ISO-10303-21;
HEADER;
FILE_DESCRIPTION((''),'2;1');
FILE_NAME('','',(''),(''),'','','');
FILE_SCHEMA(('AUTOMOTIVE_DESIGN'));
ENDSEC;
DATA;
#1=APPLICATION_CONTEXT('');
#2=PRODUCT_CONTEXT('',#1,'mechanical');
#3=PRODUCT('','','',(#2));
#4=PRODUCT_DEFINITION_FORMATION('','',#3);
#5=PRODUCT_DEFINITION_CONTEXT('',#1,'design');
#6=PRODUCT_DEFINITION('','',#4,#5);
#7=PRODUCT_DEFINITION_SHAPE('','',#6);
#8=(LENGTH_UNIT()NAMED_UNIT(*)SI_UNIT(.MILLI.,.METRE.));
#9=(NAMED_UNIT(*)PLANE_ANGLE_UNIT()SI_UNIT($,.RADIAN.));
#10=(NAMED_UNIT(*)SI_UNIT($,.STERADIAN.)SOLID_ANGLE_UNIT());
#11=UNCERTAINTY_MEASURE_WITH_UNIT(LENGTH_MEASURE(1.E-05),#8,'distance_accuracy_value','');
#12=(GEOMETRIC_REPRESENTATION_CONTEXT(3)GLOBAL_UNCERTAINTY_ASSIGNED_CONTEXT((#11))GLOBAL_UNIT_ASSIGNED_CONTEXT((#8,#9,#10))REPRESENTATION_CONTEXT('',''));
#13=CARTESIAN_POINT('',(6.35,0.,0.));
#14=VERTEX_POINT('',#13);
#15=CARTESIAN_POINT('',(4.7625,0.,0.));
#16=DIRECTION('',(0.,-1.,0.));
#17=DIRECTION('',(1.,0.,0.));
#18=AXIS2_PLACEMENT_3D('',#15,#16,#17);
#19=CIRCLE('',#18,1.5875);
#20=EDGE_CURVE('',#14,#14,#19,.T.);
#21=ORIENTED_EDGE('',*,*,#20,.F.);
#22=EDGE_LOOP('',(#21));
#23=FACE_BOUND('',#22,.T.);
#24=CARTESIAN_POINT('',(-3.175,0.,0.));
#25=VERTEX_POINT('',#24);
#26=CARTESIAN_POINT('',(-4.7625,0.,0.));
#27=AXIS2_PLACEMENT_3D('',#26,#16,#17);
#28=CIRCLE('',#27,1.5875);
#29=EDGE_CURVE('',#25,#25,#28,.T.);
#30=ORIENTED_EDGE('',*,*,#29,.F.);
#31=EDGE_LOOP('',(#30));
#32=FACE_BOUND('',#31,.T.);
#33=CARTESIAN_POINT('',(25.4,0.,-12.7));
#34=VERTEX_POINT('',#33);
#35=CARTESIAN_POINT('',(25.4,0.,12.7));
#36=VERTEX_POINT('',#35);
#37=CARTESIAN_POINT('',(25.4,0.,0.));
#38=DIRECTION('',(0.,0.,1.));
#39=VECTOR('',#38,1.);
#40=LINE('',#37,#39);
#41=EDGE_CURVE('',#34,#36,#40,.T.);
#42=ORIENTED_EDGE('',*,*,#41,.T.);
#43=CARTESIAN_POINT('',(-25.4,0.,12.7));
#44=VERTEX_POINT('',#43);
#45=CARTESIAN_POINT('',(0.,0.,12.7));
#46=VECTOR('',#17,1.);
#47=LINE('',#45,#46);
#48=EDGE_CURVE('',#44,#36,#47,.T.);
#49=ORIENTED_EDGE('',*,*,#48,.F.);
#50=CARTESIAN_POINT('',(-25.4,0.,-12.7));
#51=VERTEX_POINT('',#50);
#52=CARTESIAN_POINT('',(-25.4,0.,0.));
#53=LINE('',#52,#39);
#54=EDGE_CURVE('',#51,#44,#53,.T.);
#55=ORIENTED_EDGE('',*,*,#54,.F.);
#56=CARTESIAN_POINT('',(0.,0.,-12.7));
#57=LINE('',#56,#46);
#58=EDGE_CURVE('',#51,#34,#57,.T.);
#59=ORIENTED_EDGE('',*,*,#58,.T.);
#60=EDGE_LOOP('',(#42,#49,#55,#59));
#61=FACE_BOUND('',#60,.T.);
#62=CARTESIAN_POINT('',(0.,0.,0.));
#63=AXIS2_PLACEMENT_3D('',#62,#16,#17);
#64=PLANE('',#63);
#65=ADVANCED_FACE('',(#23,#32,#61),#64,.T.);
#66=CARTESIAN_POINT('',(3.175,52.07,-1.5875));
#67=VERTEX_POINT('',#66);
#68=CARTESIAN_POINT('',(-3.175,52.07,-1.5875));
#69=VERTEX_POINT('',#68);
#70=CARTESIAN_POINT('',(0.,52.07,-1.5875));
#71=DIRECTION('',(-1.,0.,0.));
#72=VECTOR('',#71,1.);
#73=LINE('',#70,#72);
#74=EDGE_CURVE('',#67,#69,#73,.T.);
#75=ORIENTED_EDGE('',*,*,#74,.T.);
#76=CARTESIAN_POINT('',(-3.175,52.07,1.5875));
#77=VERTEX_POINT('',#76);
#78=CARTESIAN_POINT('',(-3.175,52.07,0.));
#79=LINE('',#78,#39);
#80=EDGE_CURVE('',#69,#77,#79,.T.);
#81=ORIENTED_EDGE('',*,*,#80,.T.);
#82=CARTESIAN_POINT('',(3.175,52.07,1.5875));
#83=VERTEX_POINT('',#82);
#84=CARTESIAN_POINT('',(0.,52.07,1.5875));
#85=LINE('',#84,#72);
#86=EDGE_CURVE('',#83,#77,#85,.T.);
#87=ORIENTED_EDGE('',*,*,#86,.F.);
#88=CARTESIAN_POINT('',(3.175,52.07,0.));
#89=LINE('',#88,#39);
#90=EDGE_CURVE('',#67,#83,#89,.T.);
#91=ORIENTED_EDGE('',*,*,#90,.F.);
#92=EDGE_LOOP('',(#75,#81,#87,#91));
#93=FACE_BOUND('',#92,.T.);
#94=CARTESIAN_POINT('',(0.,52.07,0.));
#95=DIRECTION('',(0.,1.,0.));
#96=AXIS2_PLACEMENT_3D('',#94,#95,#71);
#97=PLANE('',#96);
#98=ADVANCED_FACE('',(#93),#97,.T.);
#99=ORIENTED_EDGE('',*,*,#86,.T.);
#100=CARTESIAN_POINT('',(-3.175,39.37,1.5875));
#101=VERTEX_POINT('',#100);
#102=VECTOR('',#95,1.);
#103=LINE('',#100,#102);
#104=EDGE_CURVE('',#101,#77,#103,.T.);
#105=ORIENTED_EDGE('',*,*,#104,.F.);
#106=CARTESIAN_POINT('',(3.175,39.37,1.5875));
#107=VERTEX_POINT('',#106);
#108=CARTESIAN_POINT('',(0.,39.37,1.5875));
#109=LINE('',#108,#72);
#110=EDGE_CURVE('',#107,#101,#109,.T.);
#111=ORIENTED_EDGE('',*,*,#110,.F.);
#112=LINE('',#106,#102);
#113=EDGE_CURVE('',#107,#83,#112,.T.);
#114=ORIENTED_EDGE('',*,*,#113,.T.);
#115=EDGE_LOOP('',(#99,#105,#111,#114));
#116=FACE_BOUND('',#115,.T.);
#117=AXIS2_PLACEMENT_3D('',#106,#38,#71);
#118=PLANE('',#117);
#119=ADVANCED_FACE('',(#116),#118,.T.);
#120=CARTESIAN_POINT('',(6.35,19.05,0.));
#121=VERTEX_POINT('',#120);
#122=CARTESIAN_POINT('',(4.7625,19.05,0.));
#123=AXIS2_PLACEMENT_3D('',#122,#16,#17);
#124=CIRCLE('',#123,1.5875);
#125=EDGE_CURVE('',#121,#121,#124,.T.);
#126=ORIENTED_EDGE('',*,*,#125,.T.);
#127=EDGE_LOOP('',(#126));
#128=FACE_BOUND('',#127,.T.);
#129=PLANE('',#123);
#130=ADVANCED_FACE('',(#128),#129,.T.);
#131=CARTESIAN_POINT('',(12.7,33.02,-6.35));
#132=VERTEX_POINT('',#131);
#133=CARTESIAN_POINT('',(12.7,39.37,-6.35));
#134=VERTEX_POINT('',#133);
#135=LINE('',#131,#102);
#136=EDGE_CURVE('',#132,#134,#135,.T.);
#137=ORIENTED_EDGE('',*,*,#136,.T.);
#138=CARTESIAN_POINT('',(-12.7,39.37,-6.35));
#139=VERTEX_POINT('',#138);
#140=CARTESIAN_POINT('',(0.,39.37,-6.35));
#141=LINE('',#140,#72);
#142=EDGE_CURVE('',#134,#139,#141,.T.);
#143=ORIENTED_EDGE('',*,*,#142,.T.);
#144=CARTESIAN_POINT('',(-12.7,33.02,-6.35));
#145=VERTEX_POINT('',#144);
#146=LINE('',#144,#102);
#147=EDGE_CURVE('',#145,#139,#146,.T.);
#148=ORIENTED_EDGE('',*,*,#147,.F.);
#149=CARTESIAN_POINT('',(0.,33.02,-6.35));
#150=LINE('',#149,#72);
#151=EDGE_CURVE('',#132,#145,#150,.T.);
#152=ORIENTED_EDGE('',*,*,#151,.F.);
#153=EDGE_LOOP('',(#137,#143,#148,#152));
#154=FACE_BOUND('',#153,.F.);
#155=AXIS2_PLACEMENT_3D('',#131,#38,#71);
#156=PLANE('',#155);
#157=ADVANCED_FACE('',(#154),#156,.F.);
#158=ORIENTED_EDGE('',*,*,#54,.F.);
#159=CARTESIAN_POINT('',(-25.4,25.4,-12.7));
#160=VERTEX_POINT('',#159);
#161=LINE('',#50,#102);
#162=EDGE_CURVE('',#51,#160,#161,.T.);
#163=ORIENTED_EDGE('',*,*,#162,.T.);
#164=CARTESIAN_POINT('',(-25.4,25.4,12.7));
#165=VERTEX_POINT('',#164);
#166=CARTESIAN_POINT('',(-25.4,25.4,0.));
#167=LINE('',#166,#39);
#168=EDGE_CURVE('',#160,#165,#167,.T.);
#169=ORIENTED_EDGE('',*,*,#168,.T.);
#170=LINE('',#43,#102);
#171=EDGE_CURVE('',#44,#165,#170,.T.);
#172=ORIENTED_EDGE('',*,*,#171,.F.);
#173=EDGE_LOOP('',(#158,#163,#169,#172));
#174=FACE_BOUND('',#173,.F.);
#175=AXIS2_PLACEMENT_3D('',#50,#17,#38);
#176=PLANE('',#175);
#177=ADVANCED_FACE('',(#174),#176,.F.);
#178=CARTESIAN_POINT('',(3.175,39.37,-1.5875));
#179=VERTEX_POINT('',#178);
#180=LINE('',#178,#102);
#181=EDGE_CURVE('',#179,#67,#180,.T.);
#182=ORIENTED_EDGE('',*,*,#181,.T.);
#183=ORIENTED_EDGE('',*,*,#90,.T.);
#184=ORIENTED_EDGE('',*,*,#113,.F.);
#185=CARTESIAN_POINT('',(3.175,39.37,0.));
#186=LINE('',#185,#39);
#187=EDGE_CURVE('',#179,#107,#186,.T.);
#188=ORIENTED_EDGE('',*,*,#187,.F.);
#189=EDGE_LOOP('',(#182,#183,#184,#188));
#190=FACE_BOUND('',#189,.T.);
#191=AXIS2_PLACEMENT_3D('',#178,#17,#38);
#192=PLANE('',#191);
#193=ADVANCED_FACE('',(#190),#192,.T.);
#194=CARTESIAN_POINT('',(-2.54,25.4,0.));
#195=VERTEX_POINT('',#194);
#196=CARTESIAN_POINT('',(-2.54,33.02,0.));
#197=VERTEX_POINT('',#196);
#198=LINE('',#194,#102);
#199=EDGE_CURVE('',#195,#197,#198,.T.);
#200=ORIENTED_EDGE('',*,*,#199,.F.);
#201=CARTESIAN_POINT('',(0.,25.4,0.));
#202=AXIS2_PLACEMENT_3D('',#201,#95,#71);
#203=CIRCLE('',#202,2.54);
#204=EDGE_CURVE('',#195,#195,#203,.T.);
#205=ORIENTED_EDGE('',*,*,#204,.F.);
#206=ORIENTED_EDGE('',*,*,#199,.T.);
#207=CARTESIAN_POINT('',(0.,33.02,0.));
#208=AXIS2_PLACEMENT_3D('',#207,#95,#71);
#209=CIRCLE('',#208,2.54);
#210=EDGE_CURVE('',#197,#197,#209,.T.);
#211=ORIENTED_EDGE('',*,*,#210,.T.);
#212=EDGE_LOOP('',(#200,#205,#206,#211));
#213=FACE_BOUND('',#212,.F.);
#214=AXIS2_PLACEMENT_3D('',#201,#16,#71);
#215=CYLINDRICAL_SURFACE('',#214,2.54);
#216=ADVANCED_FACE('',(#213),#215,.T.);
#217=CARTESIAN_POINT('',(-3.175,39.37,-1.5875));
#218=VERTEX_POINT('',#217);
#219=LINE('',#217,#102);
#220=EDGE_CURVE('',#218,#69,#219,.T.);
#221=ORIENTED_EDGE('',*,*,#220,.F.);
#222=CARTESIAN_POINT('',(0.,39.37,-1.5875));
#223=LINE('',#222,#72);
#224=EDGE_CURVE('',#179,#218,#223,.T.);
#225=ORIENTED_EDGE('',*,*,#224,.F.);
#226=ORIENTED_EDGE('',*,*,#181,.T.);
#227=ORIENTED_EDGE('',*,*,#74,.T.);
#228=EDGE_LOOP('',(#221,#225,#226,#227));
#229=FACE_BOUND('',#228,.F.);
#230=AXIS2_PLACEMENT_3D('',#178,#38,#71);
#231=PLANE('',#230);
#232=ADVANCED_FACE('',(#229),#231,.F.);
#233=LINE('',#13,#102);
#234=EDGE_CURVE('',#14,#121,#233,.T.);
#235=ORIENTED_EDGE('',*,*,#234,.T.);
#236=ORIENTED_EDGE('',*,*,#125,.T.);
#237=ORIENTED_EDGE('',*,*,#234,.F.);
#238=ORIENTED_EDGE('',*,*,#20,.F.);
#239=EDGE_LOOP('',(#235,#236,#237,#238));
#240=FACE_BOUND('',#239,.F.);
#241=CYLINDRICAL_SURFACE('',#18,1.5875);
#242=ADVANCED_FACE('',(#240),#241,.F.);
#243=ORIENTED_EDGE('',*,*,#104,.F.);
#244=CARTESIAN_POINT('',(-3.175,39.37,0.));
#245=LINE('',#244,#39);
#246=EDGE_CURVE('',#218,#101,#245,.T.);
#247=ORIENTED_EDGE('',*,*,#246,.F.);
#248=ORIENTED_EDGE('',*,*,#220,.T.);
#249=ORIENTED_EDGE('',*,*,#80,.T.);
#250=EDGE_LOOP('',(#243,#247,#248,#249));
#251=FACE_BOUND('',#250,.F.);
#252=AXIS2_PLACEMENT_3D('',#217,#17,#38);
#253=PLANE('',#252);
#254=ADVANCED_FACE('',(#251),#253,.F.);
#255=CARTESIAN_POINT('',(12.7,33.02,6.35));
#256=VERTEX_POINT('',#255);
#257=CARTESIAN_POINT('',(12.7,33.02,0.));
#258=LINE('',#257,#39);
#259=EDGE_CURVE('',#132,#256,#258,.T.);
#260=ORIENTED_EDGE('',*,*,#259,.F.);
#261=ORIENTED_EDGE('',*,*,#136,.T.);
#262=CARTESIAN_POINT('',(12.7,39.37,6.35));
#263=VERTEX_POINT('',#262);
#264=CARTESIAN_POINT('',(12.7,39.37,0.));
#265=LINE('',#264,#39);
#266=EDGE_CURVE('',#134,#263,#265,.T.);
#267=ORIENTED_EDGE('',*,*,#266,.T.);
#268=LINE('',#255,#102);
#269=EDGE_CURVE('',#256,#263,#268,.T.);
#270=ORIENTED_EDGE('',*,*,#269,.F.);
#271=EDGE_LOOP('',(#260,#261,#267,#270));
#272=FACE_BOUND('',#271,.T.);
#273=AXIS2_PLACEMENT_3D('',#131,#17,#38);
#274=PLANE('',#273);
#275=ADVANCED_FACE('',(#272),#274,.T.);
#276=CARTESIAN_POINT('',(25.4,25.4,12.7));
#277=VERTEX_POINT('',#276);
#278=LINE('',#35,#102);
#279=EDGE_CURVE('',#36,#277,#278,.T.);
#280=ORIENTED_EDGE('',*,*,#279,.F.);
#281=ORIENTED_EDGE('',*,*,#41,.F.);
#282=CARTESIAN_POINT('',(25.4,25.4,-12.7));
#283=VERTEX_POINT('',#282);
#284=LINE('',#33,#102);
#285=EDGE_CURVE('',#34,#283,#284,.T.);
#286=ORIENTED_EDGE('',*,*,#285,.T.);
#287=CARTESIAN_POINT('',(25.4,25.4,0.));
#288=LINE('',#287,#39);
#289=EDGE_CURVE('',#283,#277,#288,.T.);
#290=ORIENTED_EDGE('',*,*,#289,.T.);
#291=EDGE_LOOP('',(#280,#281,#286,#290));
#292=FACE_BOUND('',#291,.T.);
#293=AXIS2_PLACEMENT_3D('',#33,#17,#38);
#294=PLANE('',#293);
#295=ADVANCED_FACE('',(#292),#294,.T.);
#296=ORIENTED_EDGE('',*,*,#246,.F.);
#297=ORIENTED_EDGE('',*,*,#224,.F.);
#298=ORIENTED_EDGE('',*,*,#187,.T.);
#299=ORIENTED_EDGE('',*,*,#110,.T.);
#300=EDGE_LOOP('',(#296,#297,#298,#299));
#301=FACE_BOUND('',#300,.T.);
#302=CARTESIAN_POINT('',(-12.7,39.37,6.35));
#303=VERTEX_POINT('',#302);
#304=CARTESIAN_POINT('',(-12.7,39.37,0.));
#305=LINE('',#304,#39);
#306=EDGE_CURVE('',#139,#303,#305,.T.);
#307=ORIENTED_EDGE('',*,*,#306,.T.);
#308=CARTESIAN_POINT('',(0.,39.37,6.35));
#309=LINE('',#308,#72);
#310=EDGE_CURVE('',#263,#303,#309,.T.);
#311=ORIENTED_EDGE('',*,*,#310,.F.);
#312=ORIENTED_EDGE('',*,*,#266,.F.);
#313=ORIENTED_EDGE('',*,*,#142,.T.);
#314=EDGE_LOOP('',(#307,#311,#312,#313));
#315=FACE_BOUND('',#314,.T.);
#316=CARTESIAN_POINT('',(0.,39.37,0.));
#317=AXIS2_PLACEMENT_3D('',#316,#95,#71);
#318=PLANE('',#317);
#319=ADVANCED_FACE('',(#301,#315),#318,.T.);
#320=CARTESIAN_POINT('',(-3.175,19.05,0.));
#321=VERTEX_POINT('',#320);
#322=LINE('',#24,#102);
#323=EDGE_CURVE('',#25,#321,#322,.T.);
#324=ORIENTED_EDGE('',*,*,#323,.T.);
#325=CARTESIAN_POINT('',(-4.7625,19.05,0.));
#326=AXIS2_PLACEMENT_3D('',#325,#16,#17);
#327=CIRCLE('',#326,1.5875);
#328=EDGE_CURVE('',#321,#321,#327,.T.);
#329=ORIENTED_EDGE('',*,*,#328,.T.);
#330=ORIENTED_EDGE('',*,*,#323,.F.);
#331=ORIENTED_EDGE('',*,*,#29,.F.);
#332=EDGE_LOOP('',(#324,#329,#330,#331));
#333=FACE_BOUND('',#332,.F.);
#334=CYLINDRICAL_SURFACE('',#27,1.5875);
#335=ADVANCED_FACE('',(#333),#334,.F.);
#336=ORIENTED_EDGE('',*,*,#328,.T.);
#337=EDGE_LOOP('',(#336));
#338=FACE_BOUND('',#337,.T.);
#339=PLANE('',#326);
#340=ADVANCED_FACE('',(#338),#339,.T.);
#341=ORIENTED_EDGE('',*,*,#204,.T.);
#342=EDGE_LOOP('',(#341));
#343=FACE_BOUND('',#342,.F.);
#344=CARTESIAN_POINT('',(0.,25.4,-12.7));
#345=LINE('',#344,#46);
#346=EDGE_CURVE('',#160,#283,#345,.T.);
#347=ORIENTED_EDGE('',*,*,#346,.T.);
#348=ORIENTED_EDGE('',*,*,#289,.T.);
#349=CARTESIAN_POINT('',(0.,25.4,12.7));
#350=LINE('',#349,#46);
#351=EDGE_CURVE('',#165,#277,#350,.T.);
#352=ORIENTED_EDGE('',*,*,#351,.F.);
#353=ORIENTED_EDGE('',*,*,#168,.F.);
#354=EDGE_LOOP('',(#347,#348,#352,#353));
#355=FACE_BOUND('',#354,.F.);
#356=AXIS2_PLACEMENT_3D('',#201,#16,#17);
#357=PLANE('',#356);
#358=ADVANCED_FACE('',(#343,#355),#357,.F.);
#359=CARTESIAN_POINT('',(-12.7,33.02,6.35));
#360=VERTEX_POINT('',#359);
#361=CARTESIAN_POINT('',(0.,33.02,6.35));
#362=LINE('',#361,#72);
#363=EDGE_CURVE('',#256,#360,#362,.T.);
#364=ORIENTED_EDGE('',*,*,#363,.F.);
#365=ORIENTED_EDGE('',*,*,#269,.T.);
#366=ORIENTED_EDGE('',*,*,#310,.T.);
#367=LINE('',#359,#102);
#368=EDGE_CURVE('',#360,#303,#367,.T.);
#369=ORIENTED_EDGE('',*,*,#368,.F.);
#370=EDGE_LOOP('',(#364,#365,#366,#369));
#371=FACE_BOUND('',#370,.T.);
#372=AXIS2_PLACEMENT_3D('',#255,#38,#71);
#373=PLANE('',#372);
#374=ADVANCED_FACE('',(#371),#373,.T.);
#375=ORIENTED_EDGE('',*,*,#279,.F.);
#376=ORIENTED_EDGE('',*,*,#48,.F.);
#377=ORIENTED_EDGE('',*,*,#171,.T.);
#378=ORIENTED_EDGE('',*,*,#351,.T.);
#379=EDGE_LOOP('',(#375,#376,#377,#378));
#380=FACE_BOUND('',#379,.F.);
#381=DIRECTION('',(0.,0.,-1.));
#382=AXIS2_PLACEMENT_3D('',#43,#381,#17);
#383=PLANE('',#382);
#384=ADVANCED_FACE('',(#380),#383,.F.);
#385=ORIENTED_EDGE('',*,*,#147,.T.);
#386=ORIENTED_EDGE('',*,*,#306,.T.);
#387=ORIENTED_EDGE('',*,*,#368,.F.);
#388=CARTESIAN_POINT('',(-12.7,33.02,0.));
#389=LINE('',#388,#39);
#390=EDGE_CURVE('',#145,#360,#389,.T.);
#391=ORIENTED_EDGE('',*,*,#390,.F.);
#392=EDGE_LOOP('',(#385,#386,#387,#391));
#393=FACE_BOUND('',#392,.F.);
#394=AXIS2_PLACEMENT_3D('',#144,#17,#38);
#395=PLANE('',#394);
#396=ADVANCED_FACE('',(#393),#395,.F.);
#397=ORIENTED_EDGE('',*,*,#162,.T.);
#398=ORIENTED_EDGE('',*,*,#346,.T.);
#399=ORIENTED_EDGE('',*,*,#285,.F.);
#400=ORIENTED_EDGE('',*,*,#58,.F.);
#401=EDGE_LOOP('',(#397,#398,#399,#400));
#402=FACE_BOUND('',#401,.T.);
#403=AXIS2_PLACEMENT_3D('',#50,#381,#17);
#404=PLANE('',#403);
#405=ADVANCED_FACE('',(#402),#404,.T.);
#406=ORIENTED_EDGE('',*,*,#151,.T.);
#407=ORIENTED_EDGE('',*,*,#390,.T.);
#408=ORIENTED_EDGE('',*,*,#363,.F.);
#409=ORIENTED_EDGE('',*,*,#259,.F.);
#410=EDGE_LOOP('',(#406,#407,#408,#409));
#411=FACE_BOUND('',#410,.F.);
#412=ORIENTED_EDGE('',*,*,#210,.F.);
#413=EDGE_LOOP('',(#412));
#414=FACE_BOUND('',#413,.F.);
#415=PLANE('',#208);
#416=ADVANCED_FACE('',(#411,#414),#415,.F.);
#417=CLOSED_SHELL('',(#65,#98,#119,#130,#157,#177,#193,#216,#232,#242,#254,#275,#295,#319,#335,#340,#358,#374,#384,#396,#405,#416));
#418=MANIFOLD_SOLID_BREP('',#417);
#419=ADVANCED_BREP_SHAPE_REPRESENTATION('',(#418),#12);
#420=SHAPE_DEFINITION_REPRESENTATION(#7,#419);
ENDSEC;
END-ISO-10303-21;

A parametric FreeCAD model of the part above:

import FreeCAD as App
import Part
import Sketcher
from FreeCAD import Vector
Q = App.Units.Quantity

doc = App.newDocument("Part")
params = doc.addObject("Spreadsheet::Sheet", "Params")
for row, (alias, value) in enumerate([
    ("sketch1_width", "2 in"),
    ("sketch1_height", "1 in"),
    ("pad1_length", "1 in"),
    ("sketch2_diameter", "0.2 in"),
    ("pad2_length", "0.3 in"),
    ("sketch3_width", "1 in"),
    ("sketch3_height", "0.5 in"),
    ("pad3_length", "0.25 in"),
    ("sketch4_width", "0.25 in"),
    ("sketch4_height", "0.125 in"),
    ("pad4_length", "0.5 in"),
    ("sketch5_diameter", "0.125 in"),
    ("pocket1_length", "0.75 in"),
], start=1):
    params.set(f"A{row}", alias)
    params.set(f"B{row}", "=" + value)
    params.setAlias(f"B{row}", alias)

body = doc.addObject("PartDesign::Body", "Body")

sketch1 = body.newObject("Sketcher::SketchObject", "Sketch")
sketch1.AttachmentSupport = (doc.getObject("XZ_Plane"), [""])
sketch1.MapMode = "FlatFace"
sketch1.addGeometry([
    Part.LineSegment(Vector(-25.4, 12.7, 0), Vector(-25.4, -12.7, 0)),
    Part.LineSegment(Vector(-25.4, -12.7, 0), Vector(25.4, -12.7, 0)),
    Part.LineSegment(Vector(25.4, -12.7, 0), Vector(25.4, 12.7, 0)),
    Part.LineSegment(Vector(25.4, 12.7, 0), Vector(-25.4, 12.7, 0)),
], False)
sketch1.addConstraint([
    Sketcher.Constraint("Coincident", 0, 2, 1, 1),
    Sketcher.Constraint("Coincident", 1, 2, 2, 1),
    Sketcher.Constraint("Coincident", 2, 2, 3, 1),
    Sketcher.Constraint("Coincident", 3, 2, 0, 1),
    Sketcher.Constraint("Vertical", 0),
    Sketcher.Constraint("Horizontal", 1),
    Sketcher.Constraint("Vertical", 2),
    Sketcher.Constraint("Horizontal", 3),
    Sketcher.Constraint("Symmetric", 0, 2, 2, 2, -1, 1),
    Sketcher.Constraint("DistanceX", 1, 1, 1, 2, Q("2 in")),
    Sketcher.Constraint("DistanceY", 0, 2, 0, 1, Q("1 in")),
])
sketch1.setExpression("Constraints[9]", "Params.sketch1_width")
sketch1.setExpression("Constraints[10]", "Params.sketch1_height")
pad1 = body.newObject("PartDesign::Pad", "Pad")
pad1.Profile = sketch1
pad1.setExpression("Length", "Params.pad1_length")
pad1.Reversed = True

sketch2 = body.newObject("Sketcher::SketchObject", "Sketch001")
sketch2.AttachmentSupport = (doc.getObject("XZ_Plane"), [""])
sketch2.MapMode = "FlatFace"
sketch2.AttachmentOffset = App.Placement(Vector(0, 0, -1 * 25.4), App.Rotation())
sketch2.addGeometry(Part.Circle(Vector(0, 0, 0), Vector(0, 0, 1), 2.54), False)
sketch2.addConstraint([
    Sketcher.Constraint("Coincident", 0, 3, -1, 1),
    Sketcher.Constraint("Diameter", 0, Q("0.2 in")),
])
sketch2.setExpression("Constraints[1]", "Params.sketch2_diameter")
pad2 = body.newObject("PartDesign::Pad", "Pad001")
pad2.Profile = sketch2
pad2.setExpression("Length", "Params.pad2_length")
pad2.Reversed = True

sketch3 = body.newObject("Sketcher::SketchObject", "Sketch002")
sketch3.AttachmentSupport = (doc.getObject("XZ_Plane"), [""])
sketch3.MapMode = "FlatFace"
sketch3.AttachmentOffset = App.Placement(Vector(0, 0, -1.3 * 25.4), App.Rotation())
sketch3.addGeometry([
    Part.LineSegment(Vector(12.7, 6.35, 0), Vector(12.7, -6.35, 0)),
    Part.LineSegment(Vector(12.7, -6.35, 0), Vector(-12.7, -6.35, 0)),
    Part.LineSegment(Vector(-12.7, -6.35, 0), Vector(-12.7, 6.35, 0)),
    Part.LineSegment(Vector(-12.7, 6.35, 0), Vector(12.7, 6.35, 0)),
], False)
sketch3.addConstraint([
    Sketcher.Constraint("Coincident", 0, 2, 1, 1),
    Sketcher.Constraint("Coincident", 1, 2, 2, 1),
    Sketcher.Constraint("Coincident", 2, 2, 3, 1),
    Sketcher.Constraint("Coincident", 3, 2, 0, 1),
    Sketcher.Constraint("Vertical", 0),
    Sketcher.Constraint("Horizontal", 1),
    Sketcher.Constraint("Vertical", 2),
    Sketcher.Constraint("Horizontal", 3),
    Sketcher.Constraint("Symmetric", 0, 2, 2, 2, -1, 1),
    Sketcher.Constraint("DistanceX", 1, 2, 1, 1, Q("1 in")),
    Sketcher.Constraint("DistanceY", 0, 2, 0, 1, Q("0.5 in")),
])
sketch3.setExpression("Constraints[9]", "Params.sketch3_width")
sketch3.setExpression("Constraints[10]", "Params.sketch3_height")
pad3 = body.newObject("PartDesign::Pad", "Pad002")
pad3.Profile = sketch3
pad3.setExpression("Length", "Params.pad3_length")
pad3.Reversed = True

sketch4 = body.newObject("Sketcher::SketchObject", "Sketch003")
sketch4.AttachmentSupport = (doc.getObject("XZ_Plane"), [""])
sketch4.MapMode = "FlatFace"
sketch4.AttachmentOffset = App.Placement(Vector(0, 0, -1.55 * 25.4), App.Rotation())
sketch4.addGeometry([
    Part.LineSegment(Vector(3.175, 1.5875, 0), Vector(3.175, -1.5875, 0)),
    Part.LineSegment(Vector(3.175, -1.5875, 0), Vector(-3.175, -1.5875, 0)),
    Part.LineSegment(Vector(-3.175, -1.5875, 0), Vector(-3.175, 1.5875, 0)),
    Part.LineSegment(Vector(-3.175, 1.5875, 0), Vector(3.175, 1.5875, 0)),
], False)
sketch4.addConstraint([
    Sketcher.Constraint("Coincident", 0, 2, 1, 1),
    Sketcher.Constraint("Coincident", 1, 2, 2, 1),
    Sketcher.Constraint("Coincident", 2, 2, 3, 1),
    Sketcher.Constraint("Coincident", 3, 2, 0, 1),
    Sketcher.Constraint("Vertical", 0),
    Sketcher.Constraint("Horizontal", 1),
    Sketcher.Constraint("Vertical", 2),
    Sketcher.Constraint("Horizontal", 3),
    Sketcher.Constraint("Symmetric", 0, 2, 2, 2, -1, 1),
    Sketcher.Constraint("DistanceX", 1, 2, 1, 1, Q("0.25 in")),
    Sketcher.Constraint("DistanceY", 0, 2, 0, 1, Q("0.125 in")),
])
sketch4.setExpression("Constraints[9]", "Params.sketch4_width")
sketch4.setExpression("Constraints[10]", "Params.sketch4_height")
pad4 = body.newObject("PartDesign::Pad", "Pad003")
pad4.Profile = sketch4
pad4.setExpression("Length", "Params.pad4_length")
pad4.Reversed = True

sketch5 = body.newObject("Sketcher::SketchObject", "Sketch004")
sketch5.AttachmentSupport = (doc.getObject("XZ_Plane"), [""])
sketch5.MapMode = "FlatFace"
sketch5.addGeometry([
    Part.Circle(Vector(4.7625, 0, 0), Vector(0, 0, 1), 1.5875),
    Part.Circle(Vector(-4.7625, 0, 0), Vector(0, 0, 1), 1.5875),
], False)
sketch5.addConstraint([
    Sketcher.Constraint("Equal", 0, 1),
    Sketcher.Constraint("Symmetric", 0, 3, 1, 3, -1, 1),
    Sketcher.Constraint("PointOnObject", 0, 3, -1),
    Sketcher.Constraint("Diameter", 0, Q("0.125 in")),
    Sketcher.Constraint("DistanceX", -1, 1, 0, 3, Q("0.1875 in")),
])
sketch5.setExpression("Constraints[3]", "Params.sketch5_diameter")
pocket1 = body.newObject("PartDesign::Pocket", "Pocket")
pocket1.Profile = sketch5
pocket1.setExpression("Length", "Params.pocket1_length")

doc.recompute()
